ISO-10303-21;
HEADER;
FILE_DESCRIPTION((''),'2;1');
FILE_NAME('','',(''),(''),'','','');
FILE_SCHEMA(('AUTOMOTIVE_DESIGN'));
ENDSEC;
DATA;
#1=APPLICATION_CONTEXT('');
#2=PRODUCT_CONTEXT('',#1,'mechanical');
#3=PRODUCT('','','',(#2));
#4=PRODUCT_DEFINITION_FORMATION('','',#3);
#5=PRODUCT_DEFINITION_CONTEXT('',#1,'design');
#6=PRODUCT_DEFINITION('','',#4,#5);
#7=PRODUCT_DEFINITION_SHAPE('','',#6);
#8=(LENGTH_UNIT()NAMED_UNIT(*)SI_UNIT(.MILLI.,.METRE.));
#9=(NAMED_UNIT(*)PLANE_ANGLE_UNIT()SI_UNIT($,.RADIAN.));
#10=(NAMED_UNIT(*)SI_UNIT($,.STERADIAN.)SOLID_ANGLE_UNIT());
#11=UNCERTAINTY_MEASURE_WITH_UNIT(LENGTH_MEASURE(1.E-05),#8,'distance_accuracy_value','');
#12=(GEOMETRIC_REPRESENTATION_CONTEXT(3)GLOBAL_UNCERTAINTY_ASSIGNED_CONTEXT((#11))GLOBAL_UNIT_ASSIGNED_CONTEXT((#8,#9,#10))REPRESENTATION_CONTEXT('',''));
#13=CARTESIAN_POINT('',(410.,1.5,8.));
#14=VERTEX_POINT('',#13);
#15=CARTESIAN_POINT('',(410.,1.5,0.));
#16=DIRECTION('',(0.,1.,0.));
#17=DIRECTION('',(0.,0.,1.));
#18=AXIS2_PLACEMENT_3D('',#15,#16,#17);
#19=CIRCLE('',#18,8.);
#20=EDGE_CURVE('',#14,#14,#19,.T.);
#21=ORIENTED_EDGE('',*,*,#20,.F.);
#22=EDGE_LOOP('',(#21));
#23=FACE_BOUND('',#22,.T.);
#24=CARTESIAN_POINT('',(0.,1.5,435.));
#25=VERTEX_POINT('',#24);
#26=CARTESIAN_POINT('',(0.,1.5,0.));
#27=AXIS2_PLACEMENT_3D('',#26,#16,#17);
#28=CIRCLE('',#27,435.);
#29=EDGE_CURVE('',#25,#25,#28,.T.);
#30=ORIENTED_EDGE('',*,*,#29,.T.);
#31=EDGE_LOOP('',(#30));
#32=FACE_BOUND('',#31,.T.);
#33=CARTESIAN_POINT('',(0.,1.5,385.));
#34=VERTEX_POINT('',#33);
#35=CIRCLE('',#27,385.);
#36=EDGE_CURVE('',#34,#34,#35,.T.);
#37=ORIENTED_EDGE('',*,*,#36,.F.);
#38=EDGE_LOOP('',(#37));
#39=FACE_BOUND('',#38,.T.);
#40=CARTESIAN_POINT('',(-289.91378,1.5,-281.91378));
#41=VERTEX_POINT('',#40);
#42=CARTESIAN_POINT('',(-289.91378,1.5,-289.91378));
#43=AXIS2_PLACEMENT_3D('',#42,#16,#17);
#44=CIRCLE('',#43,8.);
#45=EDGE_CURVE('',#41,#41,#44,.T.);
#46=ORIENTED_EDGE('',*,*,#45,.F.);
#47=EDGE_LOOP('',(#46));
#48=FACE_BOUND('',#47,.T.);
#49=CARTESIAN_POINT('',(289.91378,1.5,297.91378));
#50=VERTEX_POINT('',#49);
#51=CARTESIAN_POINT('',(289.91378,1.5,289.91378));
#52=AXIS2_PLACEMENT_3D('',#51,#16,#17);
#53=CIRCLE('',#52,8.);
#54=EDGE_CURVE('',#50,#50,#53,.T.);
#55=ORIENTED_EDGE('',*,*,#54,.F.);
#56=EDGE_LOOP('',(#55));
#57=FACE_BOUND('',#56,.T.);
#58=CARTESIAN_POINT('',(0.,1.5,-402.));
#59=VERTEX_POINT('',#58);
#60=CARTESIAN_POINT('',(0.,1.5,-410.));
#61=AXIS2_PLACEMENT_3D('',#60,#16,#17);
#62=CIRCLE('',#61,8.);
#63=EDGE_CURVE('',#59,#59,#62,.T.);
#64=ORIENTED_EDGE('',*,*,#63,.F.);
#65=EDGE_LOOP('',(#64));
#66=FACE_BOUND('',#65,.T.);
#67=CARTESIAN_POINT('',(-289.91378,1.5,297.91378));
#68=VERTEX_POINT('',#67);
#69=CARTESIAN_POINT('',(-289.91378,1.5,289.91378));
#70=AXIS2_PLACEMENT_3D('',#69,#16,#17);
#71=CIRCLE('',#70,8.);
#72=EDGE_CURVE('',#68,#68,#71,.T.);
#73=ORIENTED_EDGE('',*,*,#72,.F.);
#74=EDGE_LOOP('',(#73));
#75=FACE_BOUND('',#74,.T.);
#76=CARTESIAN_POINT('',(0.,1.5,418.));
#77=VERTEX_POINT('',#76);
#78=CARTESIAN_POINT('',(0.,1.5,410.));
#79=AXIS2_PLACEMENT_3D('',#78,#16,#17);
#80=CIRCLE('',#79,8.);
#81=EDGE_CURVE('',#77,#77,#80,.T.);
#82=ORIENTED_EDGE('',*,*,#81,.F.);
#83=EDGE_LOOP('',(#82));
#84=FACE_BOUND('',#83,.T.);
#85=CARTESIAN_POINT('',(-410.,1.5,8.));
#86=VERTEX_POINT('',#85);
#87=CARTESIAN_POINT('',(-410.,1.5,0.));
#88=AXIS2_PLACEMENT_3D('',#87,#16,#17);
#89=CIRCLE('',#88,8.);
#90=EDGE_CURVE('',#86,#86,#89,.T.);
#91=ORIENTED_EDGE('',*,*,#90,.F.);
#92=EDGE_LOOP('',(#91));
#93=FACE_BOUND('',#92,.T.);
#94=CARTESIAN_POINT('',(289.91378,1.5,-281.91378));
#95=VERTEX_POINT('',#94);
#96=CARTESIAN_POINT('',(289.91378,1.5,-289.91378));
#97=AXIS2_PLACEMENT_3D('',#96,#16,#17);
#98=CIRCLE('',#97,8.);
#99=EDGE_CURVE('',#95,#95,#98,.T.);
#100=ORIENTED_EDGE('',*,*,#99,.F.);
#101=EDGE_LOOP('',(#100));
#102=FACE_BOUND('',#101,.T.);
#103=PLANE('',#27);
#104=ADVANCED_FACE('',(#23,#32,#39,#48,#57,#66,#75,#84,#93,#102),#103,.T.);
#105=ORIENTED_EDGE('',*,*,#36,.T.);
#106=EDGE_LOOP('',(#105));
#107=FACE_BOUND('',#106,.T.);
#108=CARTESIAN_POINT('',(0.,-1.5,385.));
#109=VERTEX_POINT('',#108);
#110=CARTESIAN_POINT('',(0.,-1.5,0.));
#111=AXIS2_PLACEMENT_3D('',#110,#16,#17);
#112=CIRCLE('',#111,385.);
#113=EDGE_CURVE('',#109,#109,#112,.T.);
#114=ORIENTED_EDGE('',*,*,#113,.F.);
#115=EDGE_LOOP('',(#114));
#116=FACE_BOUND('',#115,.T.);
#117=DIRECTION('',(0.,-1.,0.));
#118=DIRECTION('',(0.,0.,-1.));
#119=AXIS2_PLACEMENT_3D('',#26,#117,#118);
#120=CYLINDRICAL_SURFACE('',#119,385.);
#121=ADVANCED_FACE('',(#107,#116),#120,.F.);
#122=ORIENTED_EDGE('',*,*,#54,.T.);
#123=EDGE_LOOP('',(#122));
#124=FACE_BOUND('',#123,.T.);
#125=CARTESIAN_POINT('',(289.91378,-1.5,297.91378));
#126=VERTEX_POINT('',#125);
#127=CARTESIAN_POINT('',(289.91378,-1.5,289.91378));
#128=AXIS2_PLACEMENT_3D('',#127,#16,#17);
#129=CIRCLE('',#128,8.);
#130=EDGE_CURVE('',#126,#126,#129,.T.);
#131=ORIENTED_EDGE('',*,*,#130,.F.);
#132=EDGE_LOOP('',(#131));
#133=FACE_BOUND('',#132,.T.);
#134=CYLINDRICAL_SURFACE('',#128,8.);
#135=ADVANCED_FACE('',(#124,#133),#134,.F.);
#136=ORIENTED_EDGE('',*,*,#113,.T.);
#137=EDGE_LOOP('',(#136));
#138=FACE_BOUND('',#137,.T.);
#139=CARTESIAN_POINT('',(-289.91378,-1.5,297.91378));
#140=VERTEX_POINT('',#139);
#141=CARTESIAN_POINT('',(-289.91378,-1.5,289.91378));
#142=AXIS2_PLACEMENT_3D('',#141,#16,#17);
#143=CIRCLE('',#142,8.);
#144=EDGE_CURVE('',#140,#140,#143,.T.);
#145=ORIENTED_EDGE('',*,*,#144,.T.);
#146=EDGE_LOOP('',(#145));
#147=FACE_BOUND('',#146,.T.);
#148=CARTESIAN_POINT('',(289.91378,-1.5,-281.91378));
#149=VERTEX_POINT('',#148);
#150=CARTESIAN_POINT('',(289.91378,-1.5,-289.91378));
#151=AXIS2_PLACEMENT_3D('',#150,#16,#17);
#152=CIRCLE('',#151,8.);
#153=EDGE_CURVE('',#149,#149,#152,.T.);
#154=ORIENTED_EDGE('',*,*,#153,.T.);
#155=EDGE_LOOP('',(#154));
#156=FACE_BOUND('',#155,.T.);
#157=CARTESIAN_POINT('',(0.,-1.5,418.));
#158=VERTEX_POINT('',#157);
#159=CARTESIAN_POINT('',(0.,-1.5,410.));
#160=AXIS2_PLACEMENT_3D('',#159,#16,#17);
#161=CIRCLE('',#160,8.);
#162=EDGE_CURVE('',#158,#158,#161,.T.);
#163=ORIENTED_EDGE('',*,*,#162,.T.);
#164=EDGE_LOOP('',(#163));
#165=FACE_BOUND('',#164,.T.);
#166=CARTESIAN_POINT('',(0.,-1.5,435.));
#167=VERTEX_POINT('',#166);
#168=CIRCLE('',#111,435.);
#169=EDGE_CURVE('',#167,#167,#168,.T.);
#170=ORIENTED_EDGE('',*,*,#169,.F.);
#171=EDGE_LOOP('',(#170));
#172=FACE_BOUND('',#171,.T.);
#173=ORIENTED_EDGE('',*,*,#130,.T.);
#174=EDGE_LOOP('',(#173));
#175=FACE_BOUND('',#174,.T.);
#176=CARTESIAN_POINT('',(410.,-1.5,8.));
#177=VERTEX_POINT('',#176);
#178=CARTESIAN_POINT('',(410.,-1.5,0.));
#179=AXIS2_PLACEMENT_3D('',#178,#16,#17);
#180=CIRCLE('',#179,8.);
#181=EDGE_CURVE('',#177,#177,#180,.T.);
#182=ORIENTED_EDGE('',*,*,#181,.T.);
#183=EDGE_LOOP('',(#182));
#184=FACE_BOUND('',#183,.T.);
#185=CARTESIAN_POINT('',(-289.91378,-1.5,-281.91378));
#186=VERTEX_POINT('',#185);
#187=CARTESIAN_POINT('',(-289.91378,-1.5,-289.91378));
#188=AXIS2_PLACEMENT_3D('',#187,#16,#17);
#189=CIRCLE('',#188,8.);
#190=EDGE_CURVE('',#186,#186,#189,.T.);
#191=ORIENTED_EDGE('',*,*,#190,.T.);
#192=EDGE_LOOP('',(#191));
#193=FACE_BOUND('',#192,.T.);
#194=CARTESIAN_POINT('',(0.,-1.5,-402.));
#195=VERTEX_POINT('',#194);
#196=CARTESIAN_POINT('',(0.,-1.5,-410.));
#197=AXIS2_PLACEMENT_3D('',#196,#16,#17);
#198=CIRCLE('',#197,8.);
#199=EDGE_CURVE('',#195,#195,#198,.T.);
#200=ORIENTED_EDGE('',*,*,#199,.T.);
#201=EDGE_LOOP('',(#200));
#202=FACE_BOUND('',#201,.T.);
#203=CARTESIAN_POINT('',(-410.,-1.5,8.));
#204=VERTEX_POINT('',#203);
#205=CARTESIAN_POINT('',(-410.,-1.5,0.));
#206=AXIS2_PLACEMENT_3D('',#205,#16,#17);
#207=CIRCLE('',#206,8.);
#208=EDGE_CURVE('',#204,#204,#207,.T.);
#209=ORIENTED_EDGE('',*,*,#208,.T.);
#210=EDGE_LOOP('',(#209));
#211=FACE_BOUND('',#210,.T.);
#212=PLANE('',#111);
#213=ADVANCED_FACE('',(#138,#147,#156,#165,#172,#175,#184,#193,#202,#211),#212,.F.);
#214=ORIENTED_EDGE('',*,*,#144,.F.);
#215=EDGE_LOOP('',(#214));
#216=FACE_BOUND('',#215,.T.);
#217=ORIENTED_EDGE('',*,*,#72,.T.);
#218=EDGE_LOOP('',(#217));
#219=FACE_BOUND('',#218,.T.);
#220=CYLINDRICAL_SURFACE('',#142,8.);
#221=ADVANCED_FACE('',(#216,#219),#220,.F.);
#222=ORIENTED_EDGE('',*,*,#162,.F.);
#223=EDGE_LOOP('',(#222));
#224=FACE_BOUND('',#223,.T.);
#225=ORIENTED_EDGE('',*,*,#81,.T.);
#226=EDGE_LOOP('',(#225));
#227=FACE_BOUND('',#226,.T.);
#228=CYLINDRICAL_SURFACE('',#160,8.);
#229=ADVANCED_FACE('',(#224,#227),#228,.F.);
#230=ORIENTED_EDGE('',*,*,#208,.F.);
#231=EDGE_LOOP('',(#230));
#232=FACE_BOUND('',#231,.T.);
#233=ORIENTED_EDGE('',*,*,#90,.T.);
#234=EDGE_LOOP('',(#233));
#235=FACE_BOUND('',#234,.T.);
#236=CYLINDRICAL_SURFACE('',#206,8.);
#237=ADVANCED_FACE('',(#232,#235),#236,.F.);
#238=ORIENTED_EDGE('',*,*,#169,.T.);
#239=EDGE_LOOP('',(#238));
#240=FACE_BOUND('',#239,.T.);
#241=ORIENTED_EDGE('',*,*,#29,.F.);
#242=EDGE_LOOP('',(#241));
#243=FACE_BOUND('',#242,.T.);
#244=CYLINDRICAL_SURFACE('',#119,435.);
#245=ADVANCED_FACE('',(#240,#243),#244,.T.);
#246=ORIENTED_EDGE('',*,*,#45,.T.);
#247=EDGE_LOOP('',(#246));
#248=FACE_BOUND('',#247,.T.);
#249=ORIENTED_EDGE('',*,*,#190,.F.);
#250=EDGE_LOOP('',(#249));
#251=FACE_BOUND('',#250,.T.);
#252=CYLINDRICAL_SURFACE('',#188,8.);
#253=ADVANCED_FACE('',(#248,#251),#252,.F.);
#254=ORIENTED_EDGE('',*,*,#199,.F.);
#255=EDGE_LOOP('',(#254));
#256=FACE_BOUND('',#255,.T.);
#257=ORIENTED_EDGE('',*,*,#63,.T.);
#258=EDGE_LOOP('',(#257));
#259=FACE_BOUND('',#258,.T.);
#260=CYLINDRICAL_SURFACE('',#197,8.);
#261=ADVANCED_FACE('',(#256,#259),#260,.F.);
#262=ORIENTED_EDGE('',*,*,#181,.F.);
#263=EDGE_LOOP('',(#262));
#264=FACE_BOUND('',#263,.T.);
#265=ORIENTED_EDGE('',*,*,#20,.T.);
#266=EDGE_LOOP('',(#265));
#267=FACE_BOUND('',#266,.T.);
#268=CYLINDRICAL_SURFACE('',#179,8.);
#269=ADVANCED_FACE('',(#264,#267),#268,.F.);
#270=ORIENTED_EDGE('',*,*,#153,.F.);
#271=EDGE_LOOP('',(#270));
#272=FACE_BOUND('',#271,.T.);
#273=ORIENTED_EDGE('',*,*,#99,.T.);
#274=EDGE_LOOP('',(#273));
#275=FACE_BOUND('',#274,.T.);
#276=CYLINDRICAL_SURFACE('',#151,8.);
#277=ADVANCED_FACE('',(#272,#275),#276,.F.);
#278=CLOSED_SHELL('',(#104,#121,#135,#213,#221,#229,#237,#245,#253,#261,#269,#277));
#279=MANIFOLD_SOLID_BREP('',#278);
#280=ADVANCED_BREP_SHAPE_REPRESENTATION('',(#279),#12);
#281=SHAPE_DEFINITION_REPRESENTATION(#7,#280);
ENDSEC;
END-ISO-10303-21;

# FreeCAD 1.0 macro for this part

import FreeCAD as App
import Part
import Sketcher
from FreeCAD import Vector

doc = App.newDocument("Part")
body = doc.addObject("PartDesign::Body", "Body")

# Sketch on XZ plane
sketch1 = body.newObject("Sketcher::SketchObject", "Sketch")
sketch1.AttachmentSupport = (doc.getObject("XZ_Plane"), [""])
sketch1.MapMode = "FlatFace"
sketch1.addGeometry(Part.Circle(Vector(0, 0, 0), Vector(0, 0, 1), 435), False)
sketch1.addGeometry(Part.Circle(Vector(0, 0, 0), Vector(0, 0, 1), 385), False)
sketch1.addConstraint(Sketcher.Constraint("Coincident", 0, 3, -1, 1))
sketch1.addConstraint(Sketcher.Constraint("Coincident", 1, 3, -1, 1))
sketch1.addConstraint(Sketcher.Constraint("Diameter", 0, 870.0))
sketch1.addConstraint(Sketcher.Constraint("Diameter", 1, 770.0))
pad1 = body.newObject("PartDesign::Pad", "Pad")
pad1.Profile = sketch1
pad1.Length = 3
pad1.Midplane = True

# Sketch on XZ plane
sketch2 = body.newObject("Sketcher::SketchObject", "Sketch001")
sketch2.AttachmentSupport = (doc.getObject("XZ_Plane"), [""])
sketch2.MapMode = "FlatFace"
sketch2.AttachmentOffset = App.Placement(Vector(0, 0, -1.5), App.Rotation())
sketch2.addGeometry(Part.Circle(Vector(410, 0, 0), Vector(0, 0, 1), 8), False)
sketch2.addGeometry(Part.Circle(Vector(289.91378, 289.91378, 0), Vector(0, 0, 1), 8), False)
sketch2.addGeometry(Part.Circle(Vector(0, 410, 0), Vector(0, 0, 1), 8), False)
sketch2.addGeometry(Part.Circle(Vector(-289.91378, 289.91378, 0), Vector(0, 0, 1), 8), False)
sketch2.addGeometry(Part.Circle(Vector(-410, 0, 0), Vector(0, 0, 1), 8), False)
sketch2.addGeometry(Part.Circle(Vector(-289.91378, -289.91378, 0), Vector(0, 0, 1), 8), False)
sketch2.addGeometry(Part.Circle(Vector(0, -410, 0), Vector(0, 0, 1), 8), False)
sketch2.addGeometry(Part.Circle(Vector(289.91378, -289.91378, 0), Vector(0, 0, 1), 8), False)
sketch2.addConstraint(Sketcher.Constraint("Equal", 0, 1))
sketch2.addConstraint(Sketcher.Constraint("Equal", 1, 2))
sketch2.addConstraint(Sketcher.Constraint("Equal", 2, 3))
sketch2.addConstraint(Sketcher.Constraint("Equal", 3, 4))
sketch2.addConstraint(Sketcher.Constraint("Equal", 4, 5))
sketch2.addConstraint(Sketcher.Constraint("Equal", 5, 6))
sketch2.addConstraint(Sketcher.Constraint("Equal", 6, 7))
sketch2.addConstraint(Sketcher.Constraint("Symmetric", 0, 3, 4, 3, -1, 1))
sketch2.addConstraint(Sketcher.Constraint("Symmetric", 1, 3, 5, 3, -1, 1))
sketch2.addConstraint(Sketcher.Constraint("Symmetric", 2, 3, 6, 3, -1, 1))
sketch2.addConstraint(Sketcher.Constraint("Symmetric", 3, 3, 7, 3, -1, 1))
sketch2.addConstraint(Sketcher.Constraint("Symmetric", 1, 3, 3, 3, -2))
sketch2.addConstraint(Sketcher.Constraint("PointOnObject", 0, 3, -1))
sketch2.addConstraint(Sketcher.Constraint("PointOnObject", 2, 3, -2))
sketch2.addConstraint(Sketcher.Constraint("Diameter", 0, 16.0))
sketch2.addConstraint(Sketcher.Constraint("DistanceX", -1, 1, 0, 3, 410.0))
sketch2.addConstraint(Sketcher.Constraint("DistanceY", -1, 1, 2, 3, 410.0))
sketch2.addConstraint(Sketcher.Constraint("DistanceX", -1, 1, 1, 3, 289.91378))
sketch2.addConstraint(Sketcher.Constraint("DistanceY", -1, 1, 1, 3, 289.91378))
pocket1 = body.newObject("PartDesign::Pocket", "Pocket")
pocket1.Profile = sketch2
pocket1.Type = "ThroughAll"
pocket1.Midplane = True

doc.recompute()
